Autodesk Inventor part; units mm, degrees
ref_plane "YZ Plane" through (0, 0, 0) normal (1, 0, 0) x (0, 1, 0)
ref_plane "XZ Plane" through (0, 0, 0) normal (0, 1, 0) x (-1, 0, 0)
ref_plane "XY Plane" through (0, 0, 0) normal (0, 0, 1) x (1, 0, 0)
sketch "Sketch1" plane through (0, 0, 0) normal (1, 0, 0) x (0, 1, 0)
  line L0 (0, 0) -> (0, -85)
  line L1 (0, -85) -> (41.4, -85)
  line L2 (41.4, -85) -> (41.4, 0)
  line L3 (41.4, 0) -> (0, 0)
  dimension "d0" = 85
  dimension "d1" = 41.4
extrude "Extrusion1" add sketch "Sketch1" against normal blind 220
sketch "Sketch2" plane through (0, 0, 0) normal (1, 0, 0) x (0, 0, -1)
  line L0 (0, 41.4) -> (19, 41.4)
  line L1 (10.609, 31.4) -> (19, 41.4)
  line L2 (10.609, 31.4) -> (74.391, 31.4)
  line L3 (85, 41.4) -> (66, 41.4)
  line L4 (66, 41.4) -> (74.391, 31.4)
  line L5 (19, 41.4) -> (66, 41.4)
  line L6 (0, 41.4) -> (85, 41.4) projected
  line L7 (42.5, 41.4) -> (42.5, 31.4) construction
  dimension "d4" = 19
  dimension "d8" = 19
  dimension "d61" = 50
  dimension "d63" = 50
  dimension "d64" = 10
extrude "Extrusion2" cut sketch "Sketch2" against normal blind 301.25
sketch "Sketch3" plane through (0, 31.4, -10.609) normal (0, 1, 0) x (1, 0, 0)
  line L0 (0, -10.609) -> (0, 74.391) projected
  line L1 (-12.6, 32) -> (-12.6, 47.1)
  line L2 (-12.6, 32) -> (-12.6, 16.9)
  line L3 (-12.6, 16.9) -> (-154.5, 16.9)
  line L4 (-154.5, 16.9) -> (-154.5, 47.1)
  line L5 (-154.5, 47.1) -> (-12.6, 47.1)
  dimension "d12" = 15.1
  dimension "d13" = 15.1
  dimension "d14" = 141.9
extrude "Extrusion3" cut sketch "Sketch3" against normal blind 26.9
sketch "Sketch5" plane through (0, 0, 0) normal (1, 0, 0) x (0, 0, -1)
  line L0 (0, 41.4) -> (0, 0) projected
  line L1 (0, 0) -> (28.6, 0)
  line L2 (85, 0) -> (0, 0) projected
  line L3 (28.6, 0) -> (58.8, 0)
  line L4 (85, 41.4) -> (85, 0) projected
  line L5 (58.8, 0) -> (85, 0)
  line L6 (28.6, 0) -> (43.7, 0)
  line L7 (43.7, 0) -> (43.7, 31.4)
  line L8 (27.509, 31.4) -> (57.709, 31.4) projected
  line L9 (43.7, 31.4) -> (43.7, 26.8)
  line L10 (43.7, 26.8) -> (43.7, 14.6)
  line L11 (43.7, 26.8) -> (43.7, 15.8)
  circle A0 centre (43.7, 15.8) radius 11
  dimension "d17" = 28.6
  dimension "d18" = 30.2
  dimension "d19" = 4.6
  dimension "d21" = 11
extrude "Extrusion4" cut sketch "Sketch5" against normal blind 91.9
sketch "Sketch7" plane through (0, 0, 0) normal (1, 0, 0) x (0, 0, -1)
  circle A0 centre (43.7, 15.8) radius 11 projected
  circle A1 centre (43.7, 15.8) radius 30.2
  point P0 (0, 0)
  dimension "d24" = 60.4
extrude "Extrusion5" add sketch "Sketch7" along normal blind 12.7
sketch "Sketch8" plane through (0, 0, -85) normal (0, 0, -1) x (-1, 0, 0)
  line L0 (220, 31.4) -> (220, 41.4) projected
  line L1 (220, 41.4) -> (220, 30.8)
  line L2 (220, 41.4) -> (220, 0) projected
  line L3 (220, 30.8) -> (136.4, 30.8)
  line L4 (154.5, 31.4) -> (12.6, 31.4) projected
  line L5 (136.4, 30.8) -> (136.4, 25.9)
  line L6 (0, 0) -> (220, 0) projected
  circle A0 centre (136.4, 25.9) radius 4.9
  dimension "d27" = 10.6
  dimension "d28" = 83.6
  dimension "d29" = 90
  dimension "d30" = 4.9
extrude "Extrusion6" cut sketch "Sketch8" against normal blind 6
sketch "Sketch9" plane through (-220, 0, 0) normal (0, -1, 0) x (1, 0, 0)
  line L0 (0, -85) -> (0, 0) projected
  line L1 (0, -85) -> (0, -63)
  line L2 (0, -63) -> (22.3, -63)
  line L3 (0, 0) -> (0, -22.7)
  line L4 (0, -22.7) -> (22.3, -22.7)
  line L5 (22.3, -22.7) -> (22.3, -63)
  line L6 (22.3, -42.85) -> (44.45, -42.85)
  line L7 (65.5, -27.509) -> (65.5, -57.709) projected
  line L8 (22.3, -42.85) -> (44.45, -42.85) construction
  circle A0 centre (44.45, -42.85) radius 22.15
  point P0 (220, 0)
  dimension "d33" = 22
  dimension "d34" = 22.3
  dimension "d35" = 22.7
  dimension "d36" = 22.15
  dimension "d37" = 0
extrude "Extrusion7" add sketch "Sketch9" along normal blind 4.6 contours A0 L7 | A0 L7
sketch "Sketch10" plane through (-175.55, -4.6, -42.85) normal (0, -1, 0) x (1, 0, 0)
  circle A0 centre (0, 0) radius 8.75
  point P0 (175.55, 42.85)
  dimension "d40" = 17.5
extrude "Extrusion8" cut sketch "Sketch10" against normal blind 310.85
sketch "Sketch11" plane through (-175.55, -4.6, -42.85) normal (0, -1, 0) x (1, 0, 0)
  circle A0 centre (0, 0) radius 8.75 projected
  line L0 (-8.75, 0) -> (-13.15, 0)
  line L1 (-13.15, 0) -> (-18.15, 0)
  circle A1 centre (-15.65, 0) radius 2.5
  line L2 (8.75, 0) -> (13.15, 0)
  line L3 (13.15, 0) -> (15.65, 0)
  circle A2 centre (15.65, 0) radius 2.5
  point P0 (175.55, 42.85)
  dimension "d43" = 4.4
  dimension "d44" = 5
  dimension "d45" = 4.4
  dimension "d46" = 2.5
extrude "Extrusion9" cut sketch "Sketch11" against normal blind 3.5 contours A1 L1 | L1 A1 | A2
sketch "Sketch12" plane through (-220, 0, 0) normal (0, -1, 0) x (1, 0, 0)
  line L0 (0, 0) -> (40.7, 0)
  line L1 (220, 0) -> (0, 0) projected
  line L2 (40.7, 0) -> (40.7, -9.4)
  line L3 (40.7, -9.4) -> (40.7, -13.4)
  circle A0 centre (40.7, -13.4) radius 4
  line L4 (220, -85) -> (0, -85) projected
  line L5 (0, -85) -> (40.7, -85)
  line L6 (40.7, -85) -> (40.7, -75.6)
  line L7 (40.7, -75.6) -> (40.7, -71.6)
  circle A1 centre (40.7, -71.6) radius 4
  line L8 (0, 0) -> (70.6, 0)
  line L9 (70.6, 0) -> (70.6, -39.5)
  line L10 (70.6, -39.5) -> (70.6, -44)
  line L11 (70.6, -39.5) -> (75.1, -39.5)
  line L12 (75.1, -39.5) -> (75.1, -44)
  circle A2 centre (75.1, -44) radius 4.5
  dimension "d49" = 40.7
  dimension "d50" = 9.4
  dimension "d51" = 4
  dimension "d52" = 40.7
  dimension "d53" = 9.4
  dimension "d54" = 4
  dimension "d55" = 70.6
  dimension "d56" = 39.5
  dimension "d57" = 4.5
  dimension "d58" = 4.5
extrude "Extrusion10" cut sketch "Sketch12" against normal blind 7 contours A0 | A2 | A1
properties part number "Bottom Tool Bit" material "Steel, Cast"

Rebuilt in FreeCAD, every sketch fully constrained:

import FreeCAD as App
import Part
import Sketcher
from FreeCAD import Vector
Q = App.Units.Quantity


def add_polygon(sketch, points):
    """Adds a closed chain of lines whose ends are joined by coincident constraints."""
    first, n = sketch.GeometryCount, len(points)
    for a, b in zip(points, points[1:] + points[:1]):
        sketch.addGeometry(Part.LineSegment(App.Vector(*a, 0), App.Vector(*b, 0)), False)
    for i in range(n):
        sketch.addConstraint(Sketcher.Constraint("Coincident", first + i, 2, first + (i + 1) % n, 1))

doc = App.newDocument("Part")
params = doc.addObject("Spreadsheet::Sheet", "Params")
for row, (alias, value) in enumerate([
    ("sketch1_height", "85 mm"),
    ("sketch1_width", "41.4 mm"),
    ("pad1_length", "220 mm"),
    ("sketch2_height", "47 mm"),
    ("pocket1_length", "301.25 mm"),
    ("sketch3_width", "141.9 mm"),
    ("sketch3_height", "30.2 mm"),
    ("pocket2_length", "26.9 mm"),
    ("sketch4_diameter", "22 mm"),
    ("pocket3_length", "91.9 mm"),
    ("sketch5_diameter", "60.4 mm"),
    ("sketch5_diameter2", "22 mm"),
    ("pad2_length", "12.7 mm"),
    ("sketch6_diameter", "9.8 mm"),
    ("pocket4_length", "6 mm"),
    ("sketch7_diameter", "44.3 mm"),
    ("pad3_length", "4.6 mm"),
    ("sketch8_diameter", "17.5 mm"),
    ("pocket5_length", "310.85 mm"),
    ("sketch9_diameter", "5 mm"),
    ("pocket6_length", "3.5 mm"),
    ("sketch10_diameter", "8 mm"),
    ("sketch10_diameter2", "9 mm"),
    ("pocket7_length", "7 mm"),
], start=1):
    params.set(f"A{row}", alias)
    params.set(f"B{row}", "=" + value)
    params.setAlias(f"B{row}", alias)

body = doc.addObject("PartDesign::Body", "Body")

sketch1 = body.newObject("Sketcher::SketchObject", "Sketch")
sketch1.AttachmentSupport = (doc.getObject("YZ_Plane"), [""])
sketch1.MapMode = "FlatFace"
add_polygon(sketch1, [(41, 0), (0, 0), (0, -85), (41, -85)])
sketch1.addConstraint([
    Sketcher.Constraint("Horizontal", 0),
    Sketcher.Constraint("Vertical", 1),
    Sketcher.Constraint("Horizontal", 2),
    Sketcher.Constraint("Vertical", 3),
    Sketcher.Constraint("Coincident", 0, 2, -1, 1),
    Sketcher.Constraint("DistanceY", 1, 2, 1, 1, Q("85 mm")),
    Sketcher.Constraint("DistanceX", 0, 2, 0, 1, Q("41.4 mm")),
])
sketch1.setExpression("Constraints[9]", "Params.sketch1_height")
sketch1.setExpression("Constraints[10]", "Params.sketch1_width")
pad1 = body.newObject("PartDesign::Pad", "Pad")
pad1.Profile = sketch1
pad1.setExpression("Length", "Params.pad1_length")
pad1.Reversed = True

sketch2 = body.newObject("Sketcher::SketchObject", "Sketch001")
sketch2.AttachmentSupport = (doc.getObject("YZ_Plane"), [""])
sketch2.MapMode = "FlatFace"
add_polygon(sketch2, [(41, -19), (31, -11), (31, -74), (41, -66)])
sketch2.addConstraint([
    Sketcher.Constraint("Vertical", 1),
    Sketcher.Constraint("Vertical", 3),
    Sketcher.Constraint("Equal", 0, 2),
    Sketcher.Constraint("DistanceY", 3, 2, -1, 1, Q("19 mm")),
    Sketcher.Constraint("DistanceX", 1, 2, 2, 2, Q("10 mm")),
    Sketcher.Constraint("DistanceY", 3, 1, 3, 2, Q("47 mm")),
    Sketcher.Constraint("Angle", 0, Q("140 deg")),
    Sketcher.Constraint("DistanceX", -1, 1, 0, 2, Q("31.4 mm")),
])
sketch2.setExpression("Constraints[9]", "Params.sketch2_height")
pocket1 = body.newObject("PartDesign::Pocket", "Pocket")
pocket1.Profile = sketch2
pocket1.setExpression("Length", "Params.pocket1_length")

sketch3 = body.newObject("Sketcher::SketchObject", "Sketch002")
sketch3.AttachmentSupport = (doc.getObject("XZ_Plane"), [""])
sketch3.MapMode = "FlatFace"
sketch3.AttachmentOffset = App.Placement(Vector(0, 0, -31.4), App.Rotation())
add_polygon(sketch3, [(-13, -28), (-13, -58), (-154, -58), (-154, -28)])
sketch3.addConstraint([
    Sketcher.Constraint("Vertical", 0),
    Sketcher.Constraint("Horizontal", 1),
    Sketcher.Constraint("Vertical", 2),
    Sketcher.Constraint("Horizontal", 3),
    Sketcher.Constraint("DistanceX", 1, 2, 1, 1, Q("141.9 mm")),
    Sketcher.Constraint("DistanceY", 0, 2, 0, 1, Q("30.2 mm")),
    Sketcher.Constraint("DistanceX", 0, 2, -1, 1, Q("12.6 mm")),
    Sketcher.Constraint("DistanceY", 0, 2, -1, 1, Q("57.709 mm")),
])
sketch3.setExpression("Constraints[8]", "Params.sketch3_width")
sketch3.setExpression("Constraints[9]", "Params.sketch3_height")
pocket2 = body.newObject("PartDesign::Pocket", "Pocket001")
pocket2.Profile = sketch3
pocket2.setExpression("Length", "Params.pocket2_length")
pocket2.Reversed = True

sketch4 = body.newObject("Sketcher::SketchObject", "Sketch003")
sketch4.AttachmentSupport = (doc.getObject("YZ_Plane"), [""])
sketch4.MapMode = "FlatFace"
sketch4.addGeometry(Part.Circle(Vector(16, -44, 0), Vector(0, 0, 1), 11), False)
sketch4.addConstraint([
    Sketcher.Constraint("Diameter", 0, Q("22 mm")),
    Sketcher.Constraint("DistanceX", -1, 1, 0, 3, Q("15.8 mm")),
    Sketcher.Constraint("DistanceY", 0, 3, -1, 1, Q("43.7 mm")),
])
sketch4.setExpression("Constraints[0]", "Params.sketch4_diameter")
pocket3 = body.newObject("PartDesign::Pocket", "Pocket002")
pocket3.Profile = sketch4
pocket3.setExpression("Length", "Params.pocket3_length")

sketch5 = body.newObject("Sketcher::SketchObject", "Sketch004")
sketch5.AttachmentSupport = (doc.getObject("YZ_Plane"), [""])
sketch5.MapMode = "FlatFace"
sketch5.addGeometry([
    Part.Circle(Vector(16, -44, 0), Vector(0, 0, 1), 30),
    Part.Circle(Vector(16, -44, 0), Vector(0, 0, 1), 11),
], False)
sketch5.addConstraint([
    Sketcher.Constraint("Coincident", 1, 3, 0, 3),
    Sketcher.Constraint("Diameter", 0, Q("60.4 mm")),
    Sketcher.Constraint("Diameter", 1, Q("22 mm")),
    Sketcher.Constraint("DistanceX", -1, 1, 0, 3, Q("15.8 mm")),
    Sketcher.Constraint("DistanceY", 0, 3, -1, 1, Q("43.7 mm")),
])
sketch5.setExpression("Constraints[1]", "Params.sketch5_diameter")
sketch5.setExpression("Constraints[2]", "Params.sketch5_diameter2")
pad2 = body.newObject("PartDesign::Pad", "Pad001")
pad2.Profile = sketch5
pad2.setExpression("Length", "Params.pad2_length")

sketch6 = body.newObject("Sketcher::SketchObject", "Sketch005")
sketch6.AttachmentSupport = (doc.getObject("XY_Plane"), [""])
sketch6.MapMode = "FlatFace"
sketch6.AttachmentOffset = App.Placement(Vector(0, 0, -85), App.Rotation())
sketch6.addGeometry(Part.Circle(Vector(-136.4, 25.9, 0), Vector(0, 0, 1), 4.9), False)
sketch6.addConstraint([
    Sketcher.Constraint("Diameter", 0, Q("9.8 mm")),
    Sketcher.Constraint("DistanceX", 0, 3, -1, 1, Q("136.4 mm")),
    Sketcher.Constraint("DistanceY", -1, 1, 0, 3, Q("25.9 mm")),
])
sketch6.setExpression("Constraints[0]", "Params.sketch6_diameter")
pocket4 = body.newObject("PartDesign::Pocket", "Pocket003")
pocket4.Profile = sketch6
pocket4.setExpression("Length", "Params.pocket4_length")
pocket4.Reversed = True

sketch7 = body.newObject("Sketcher::SketchObject", "Sketch006")
sketch7.AttachmentSupport = (doc.getObject("XZ_Plane"), [""])
sketch7.MapMode = "FlatFace"
sketch7.addGeometry(Part.Circle(Vector(-176, -43, 0), Vector(0, 0, 1), 22), False)
sketch7.addConstraint([
    Sketcher.Constraint("Diameter", 0, Q("44.3 mm")),
    Sketcher.Constraint("DistanceX", 0, 3, -1, 1, Q("175.55 mm")),
    Sketcher.Constraint("DistanceY", 0, 3, -1, 1, Q("42.85 mm")),
])
sketch7.setExpression("Constraints[0]", "Params.sketch7_diameter")
pad3 = body.newObject("PartDesign::Pad", "Pad002")
pad3.Profile = sketch7
pad3.setExpression("Length", "Params.pad3_length")

sketch8 = body.newObject("Sketcher::SketchObject", "Sketch007")
sketch8.AttachmentSupport = (doc.getObject("XZ_Plane"), [""])
sketch8.MapMode = "FlatFace"
sketch8.AttachmentOffset = App.Placement(Vector(0, 0, 4.6), App.Rotation())
sketch8.addGeometry(Part.Circle(Vector(-176, -43, 0), Vector(0, 0, 1), 9), False)
sketch8.addConstraint([
    Sketcher.Constraint("Diameter", 0, Q("17.5 mm")),
    Sketcher.Constraint("DistanceX", 0, 3, -1, 1, Q("175.55 mm")),
    Sketcher.Constraint("DistanceY", 0, 3, -1, 1, Q("42.85 mm")),
])
sketch8.setExpression("Constraints[0]", "Params.sketch8_diameter")
pocket5 = body.newObject("PartDesign::Pocket", "Pocket004")
pocket5.Profile = sketch8
pocket5.setExpression("Length", "Params.pocket5_length")

sketch9 = body.newObject("Sketcher::SketchObject", "Sketch008")
sketch9.AttachmentSupport = (doc.getObject("XZ_Plane"), [""])
sketch9.MapMode = "FlatFace"
sketch9.AttachmentOffset = App.Placement(Vector(0, 0, 4.6), App.Rotation())
sketch9.addGeometry([
    Part.Circle(Vector(-191.2, -42.9, 0), Vector(0, 0, 1), 2.5),
    Part.Circle(Vector(-159.9, -42.9, 0), Vector(0, 0, 1), 2.5),
], False)
sketch9.addConstraint([
    Sketcher.Constraint("Equal", 0, 1),
    Sketcher.Constraint("Horizontal", 0, 3, 1, 3),
    Sketcher.Constraint("Diameter", 0, Q("5 mm")),
    Sketcher.Constraint("DistanceX", 0, 3, -1, 1, Q("191.2 mm")),
    Sketcher.Constraint("DistanceX", 1, 3, -1, 1, Q("159.9 mm")),
    Sketcher.Constraint("DistanceY", 0, 3, -1, 1, Q("42.85 mm")),
])
sketch9.setExpression("Constraints[2]", "Params.sketch9_diameter")
pocket6 = body.newObject("PartDesign::Pocket", "Pocket005")
pocket6.Profile = sketch9
pocket6.setExpression("Length", "Params.pocket6_length")

sketch10 = body.newObject("Sketcher::SketchObject", "Sketch009")
sketch10.AttachmentSupport = (doc.getObject("XZ_Plane"), [""])
sketch10.MapMode = "FlatFace"
sketch10.addGeometry([
    Part.Circle(Vector(-179.3, -13.4, 0), Vector(0, 0, 1), 4),
    Part.Circle(Vector(-144.9, -44, 0), Vector(0, 0, 1), 4.5),
    Part.Circle(Vector(-179.3, -71.6, 0), Vector(0, 0, 1), 4),
], False)
sketch10.addConstraint([
    Sketcher.Constraint("Equal", 0, 2),
    Sketcher.Constraint("Vertical", 0, 3, 2, 3),
    Sketcher.Constraint("Diameter", 0, Q("8 mm")),
    Sketcher.Constraint("Diameter", 1, Q("9 mm")),
    Sketcher.Constraint("DistanceY", 1, 3, -1, 1, Q("44 mm")),
    Sketcher.Constraint("DistanceX", 0, 3, -1, 1, Q("179.3 mm")),
    Sketcher.Constraint("DistanceY", 0, 3, -1, 1, Q("13.4 mm")),
    Sketcher.Constraint("DistanceX", 1, 3, -1, 1, Q("144.9 mm")),
    Sketcher.Constraint("DistanceY", 2, 3, -1, 1, Q("71.6 mm")),
])
sketch10.setExpression("Constraints[2]", "Params.sketch10_diameter")
sketch10.setExpression("Constraints[3]", "Params.sketch10_diameter2")
pocket7 = body.newObject("PartDesign::Pocket", "Pocket006")
pocket7.Profile = sketch10
pocket7.setExpression("Length", "Params.pocket7_length")

doc.recompute()
